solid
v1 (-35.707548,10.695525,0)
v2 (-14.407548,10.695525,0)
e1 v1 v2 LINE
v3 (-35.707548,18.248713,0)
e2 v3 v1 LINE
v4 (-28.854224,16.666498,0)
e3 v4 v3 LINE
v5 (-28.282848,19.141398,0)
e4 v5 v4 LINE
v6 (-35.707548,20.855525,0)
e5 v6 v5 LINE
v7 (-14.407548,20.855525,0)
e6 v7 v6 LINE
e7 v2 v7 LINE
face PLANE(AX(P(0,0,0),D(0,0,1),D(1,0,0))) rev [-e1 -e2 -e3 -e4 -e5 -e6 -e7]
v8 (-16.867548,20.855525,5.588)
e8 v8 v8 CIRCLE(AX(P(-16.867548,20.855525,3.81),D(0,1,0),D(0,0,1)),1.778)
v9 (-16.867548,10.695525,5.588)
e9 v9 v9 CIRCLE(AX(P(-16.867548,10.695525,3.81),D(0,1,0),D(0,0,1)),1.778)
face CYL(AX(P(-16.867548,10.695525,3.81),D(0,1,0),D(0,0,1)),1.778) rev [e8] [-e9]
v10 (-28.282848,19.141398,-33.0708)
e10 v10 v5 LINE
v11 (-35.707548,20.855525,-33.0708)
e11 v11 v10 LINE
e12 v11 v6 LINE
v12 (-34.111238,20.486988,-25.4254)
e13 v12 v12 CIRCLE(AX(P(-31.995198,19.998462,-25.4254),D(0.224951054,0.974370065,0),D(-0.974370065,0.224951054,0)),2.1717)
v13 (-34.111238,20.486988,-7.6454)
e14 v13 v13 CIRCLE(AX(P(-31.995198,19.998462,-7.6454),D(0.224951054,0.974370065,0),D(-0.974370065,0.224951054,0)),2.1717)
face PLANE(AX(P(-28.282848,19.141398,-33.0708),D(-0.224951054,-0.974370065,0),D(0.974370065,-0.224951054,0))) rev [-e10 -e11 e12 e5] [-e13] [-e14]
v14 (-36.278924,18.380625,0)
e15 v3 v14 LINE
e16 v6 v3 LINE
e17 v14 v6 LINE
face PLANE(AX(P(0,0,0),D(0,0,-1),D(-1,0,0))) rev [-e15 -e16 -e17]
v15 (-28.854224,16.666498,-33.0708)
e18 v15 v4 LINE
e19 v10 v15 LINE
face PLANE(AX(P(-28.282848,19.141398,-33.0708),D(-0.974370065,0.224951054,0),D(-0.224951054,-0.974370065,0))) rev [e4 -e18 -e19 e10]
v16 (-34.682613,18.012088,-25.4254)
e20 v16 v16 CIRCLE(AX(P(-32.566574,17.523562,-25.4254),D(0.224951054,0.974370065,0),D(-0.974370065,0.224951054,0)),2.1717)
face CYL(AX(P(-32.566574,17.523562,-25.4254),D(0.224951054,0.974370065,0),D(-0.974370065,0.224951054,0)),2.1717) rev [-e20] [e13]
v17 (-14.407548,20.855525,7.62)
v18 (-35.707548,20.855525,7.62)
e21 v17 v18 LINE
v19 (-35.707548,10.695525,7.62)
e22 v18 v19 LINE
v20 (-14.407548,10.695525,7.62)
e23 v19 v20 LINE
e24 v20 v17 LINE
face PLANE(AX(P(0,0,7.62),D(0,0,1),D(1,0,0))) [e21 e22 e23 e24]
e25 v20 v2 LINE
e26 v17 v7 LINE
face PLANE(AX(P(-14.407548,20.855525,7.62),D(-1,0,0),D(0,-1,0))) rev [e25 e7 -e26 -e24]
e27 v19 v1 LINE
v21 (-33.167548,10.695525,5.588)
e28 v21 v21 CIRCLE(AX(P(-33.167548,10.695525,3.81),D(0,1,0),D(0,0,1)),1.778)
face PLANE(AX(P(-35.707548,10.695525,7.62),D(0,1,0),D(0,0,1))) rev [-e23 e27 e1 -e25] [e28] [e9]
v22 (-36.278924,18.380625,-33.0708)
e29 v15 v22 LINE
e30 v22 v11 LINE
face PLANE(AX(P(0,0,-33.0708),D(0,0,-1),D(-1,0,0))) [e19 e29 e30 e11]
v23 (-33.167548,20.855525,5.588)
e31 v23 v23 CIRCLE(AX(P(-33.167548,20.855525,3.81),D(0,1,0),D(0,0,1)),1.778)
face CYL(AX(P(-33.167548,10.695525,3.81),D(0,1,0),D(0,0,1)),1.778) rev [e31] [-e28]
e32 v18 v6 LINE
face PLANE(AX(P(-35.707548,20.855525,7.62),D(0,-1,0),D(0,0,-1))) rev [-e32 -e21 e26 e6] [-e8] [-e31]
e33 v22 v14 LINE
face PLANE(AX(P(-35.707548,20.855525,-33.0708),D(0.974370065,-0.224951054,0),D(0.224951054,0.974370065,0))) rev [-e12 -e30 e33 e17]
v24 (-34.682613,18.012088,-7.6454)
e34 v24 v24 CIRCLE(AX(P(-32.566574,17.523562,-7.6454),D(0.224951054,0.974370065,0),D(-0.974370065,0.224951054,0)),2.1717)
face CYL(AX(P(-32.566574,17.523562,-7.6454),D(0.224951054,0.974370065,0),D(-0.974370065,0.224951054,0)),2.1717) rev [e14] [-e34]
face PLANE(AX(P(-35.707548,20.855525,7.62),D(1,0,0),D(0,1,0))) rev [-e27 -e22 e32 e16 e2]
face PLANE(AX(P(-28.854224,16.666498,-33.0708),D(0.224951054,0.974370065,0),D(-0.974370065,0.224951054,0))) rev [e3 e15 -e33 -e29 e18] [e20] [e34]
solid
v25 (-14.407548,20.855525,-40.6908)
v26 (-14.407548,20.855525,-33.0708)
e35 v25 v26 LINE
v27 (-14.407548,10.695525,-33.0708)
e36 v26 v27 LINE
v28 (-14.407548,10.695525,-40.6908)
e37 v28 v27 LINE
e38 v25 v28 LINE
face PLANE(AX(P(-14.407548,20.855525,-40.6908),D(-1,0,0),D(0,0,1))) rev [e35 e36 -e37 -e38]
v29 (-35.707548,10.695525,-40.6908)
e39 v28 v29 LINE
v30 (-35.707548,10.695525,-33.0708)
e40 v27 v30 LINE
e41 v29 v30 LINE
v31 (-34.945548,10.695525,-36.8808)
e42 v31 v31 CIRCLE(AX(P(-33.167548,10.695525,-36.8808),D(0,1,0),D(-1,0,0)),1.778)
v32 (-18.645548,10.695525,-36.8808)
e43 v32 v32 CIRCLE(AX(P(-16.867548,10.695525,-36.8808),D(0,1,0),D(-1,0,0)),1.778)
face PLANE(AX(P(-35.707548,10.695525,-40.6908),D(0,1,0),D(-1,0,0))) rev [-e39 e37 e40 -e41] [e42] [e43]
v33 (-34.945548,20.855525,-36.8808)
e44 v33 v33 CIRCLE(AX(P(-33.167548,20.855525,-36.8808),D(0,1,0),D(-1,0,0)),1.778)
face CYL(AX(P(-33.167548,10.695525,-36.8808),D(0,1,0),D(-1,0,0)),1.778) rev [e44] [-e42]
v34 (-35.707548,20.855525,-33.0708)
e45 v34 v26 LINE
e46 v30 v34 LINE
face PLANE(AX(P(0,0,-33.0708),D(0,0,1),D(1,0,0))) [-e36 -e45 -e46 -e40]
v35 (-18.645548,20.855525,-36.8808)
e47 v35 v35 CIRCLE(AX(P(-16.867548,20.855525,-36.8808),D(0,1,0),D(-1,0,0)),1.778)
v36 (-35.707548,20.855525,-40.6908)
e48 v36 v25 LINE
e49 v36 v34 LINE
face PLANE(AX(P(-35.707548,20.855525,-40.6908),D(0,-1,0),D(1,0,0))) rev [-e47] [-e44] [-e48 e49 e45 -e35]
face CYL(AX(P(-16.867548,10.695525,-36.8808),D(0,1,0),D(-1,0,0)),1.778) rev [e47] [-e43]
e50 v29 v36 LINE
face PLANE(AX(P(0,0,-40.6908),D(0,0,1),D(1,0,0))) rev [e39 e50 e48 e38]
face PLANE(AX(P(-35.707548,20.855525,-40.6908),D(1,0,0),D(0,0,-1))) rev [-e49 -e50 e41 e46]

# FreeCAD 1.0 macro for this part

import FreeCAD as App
import Part
import Sketcher
Q = App.Units.Quantity


def add_polygon(sketch, points):
    """Adds a closed chain of lines whose ends are joined by coincident constraints."""
    first, n = sketch.GeometryCount, len(points)
    for a, b in zip(points, points[1:] + points[:1]):
        sketch.addGeometry(Part.LineSegment(App.Vector(*a, 0), App.Vector(*b, 0)), False)
    for i in range(n):
        sketch.addConstraint(Sketcher.Constraint("Coincident", first + i, 2, first + (i + 1) % n, 1))

doc = App.newDocument("Part")
body = doc.addObject("PartDesign::Body", "Body")

sketch1 = body.newObject("Sketcher::SketchObject", "Sketch")
sketch1.AttachmentSupport = (doc.getObject("XY_Plane"), [""])
sketch1.MapMode = "FlatFace"
add_polygon(sketch1, [(-36, 21), (-36, 11), (-14, 11), (-14, 21)])
sketch1.addConstraint(Sketcher.Constraint("Vertical", 0))
sketch1.addConstraint(Sketcher.Constraint("Horizontal", 1))
sketch1.addConstraint(Sketcher.Constraint("Vertical", 2))
sketch1.addConstraint(Sketcher.Constraint("Horizontal", 3))
sketch1.addConstraint(Sketcher.Constraint("DistanceY", 0, 2, 0, 1, Q("0.4 in")))
sketch1.addConstraint(Sketcher.Constraint("DistanceX", 1, 1, 1, 2, Q("21.300001 mm")))
sketch1.addConstraint(Sketcher.Constraint("DistanceX", 0, 2, -1, 1, Q("35.707548 mm")))
sketch1.addConstraint(Sketcher.Constraint("DistanceY", -1, 1, 0, 2, Q("10.695525 mm")))
pad1 = body.newObject("PartDesign::Pad", "Pad")
pad1.Profile = sketch1
pad1.Length = Q("0.3 in")

sketch2 = body.newObject("Sketcher::SketchObject", "Sketch001")
sketch2.AttachmentSupport = (doc.getObject("XY_Plane"), [""])
sketch2.MapMode = "FlatFace"
add_polygon(sketch2, [(-35.7, 20.9), (-28.3, 19.1), (-28.9, 16.7), (-36.3, 18.4)])
sketch2.addConstraint(Sketcher.Constraint("Perpendicular", 0, 1))
sketch2.addConstraint(Sketcher.Constraint("Perpendicular", 1, 2))
sketch2.addConstraint(Sketcher.Constraint("Perpendicular", 2, 3))
sketch2.addConstraint(Sketcher.Constraint("Angle", 0, Q("-13 deg")))
sketch2.addConstraint(Sketcher.Constraint("Distance", 0, Q("0.3 in")))
sketch2.addConstraint(Sketcher.Constraint("Distance", 1, Q("0.1 in")))
sketch2.addConstraint(Sketcher.Constraint("DistanceY", -1, 1, 0, 2, Q("19.141398 mm")))
sketch2.addConstraint(Sketcher.Constraint("DistanceX", 0, 2, -1, 1, Q("28.282848 mm")))
pad2 = body.newObject("PartDesign::Pad", "Pad001")
pad2.Profile = sketch2
pad2.Length = Q("1.302 in")
pad2.Reversed = True

sketch3 = body.newObject("Sketcher::SketchObject", "Sketch002")
sketch3.AttachmentSupport = (doc.getObject("XZ_Plane"), [""])
sketch3.MapMode = "FlatFace"
sketch3.AttachmentOffset = App.Placement(App.Vector(0, 0, -20.855525), App.Rotation())
sketch3.addGeometry(Part.Circle(App.Vector(-33.2, 3.8, 0), App.Vector(0, 0, 1), 1.8), False)
sketch3.addGeometry(Part.Circle(App.Vector(-16.9, 3.8, 0), App.Vector(0, 0, 1), 1.8), False)
sketch3.addConstraint(Sketcher.Constraint("Equal", 0, 1))
sketch3.addConstraint(Sketcher.Constraint("Horizontal", 0, 3, 1, 3))
sketch3.addConstraint(Sketcher.Constraint("Diameter", 0, Q("0.14 in")))
sketch3.addConstraint(Sketcher.Constraint("DistanceY", -1, 1, 0, 3, Q("0.15 in")))
sketch3.addConstraint(Sketcher.Constraint("DistanceX", 0, 3, 1, 3, Q("16.3 mm")))
sketch3.addConstraint(Sketcher.Constraint("DistanceX", 0, 3, -1, 1, Q("33.167548 mm")))
pocket1 = body.newObject("PartDesign::Pocket", "Pocket")
pocket1.Profile = sketch3
pocket1.Length = Q("0.4 in")
pocket1.Reversed = True

sketch4 = body.newObject("Sketcher::SketchObject", "Sketch003")
sketch4.Placement = App.Placement(App.Vector(2.764322, 11.973594, 0), App.Rotation(App.Vector(0.974370065, -0.224951054, 0), App.Vector(0, 0, -1), App.Vector(0.224951054, 0.974370065, 0), "ZXY"))
sketch4.addGeometry(Part.Circle(App.Vector(-35.7, 7.6, 0), App.Vector(0, 0, 1), 2.2), False)
sketch4.addGeometry(Part.Circle(App.Vector(-35.7, 25.4, 0), App.Vector(0, 0, 1), 2.2), False)
sketch4.addConstraint(Sketcher.Constraint("Equal", 0, 1))
sketch4.addConstraint(Sketcher.Constraint("Vertical", 0, 3, 1, 3))
sketch4.addConstraint(Sketcher.Constraint("Diameter", 0, Q("0.171 in")))
sketch4.addConstraint(Sketcher.Constraint("DistanceY", 0, 3, 1, 3, Q("0.7 in")))
sketch4.addConstraint(Sketcher.Constraint("DistanceY", -1, 1, 0, 3, Q("0.301 in")))
sketch4.addConstraint(Sketcher.Constraint("DistanceX", 0, 3, -1, 1, Q("35.673838 mm")))
pocket2 = body.newObject("PartDesign::Pocket", "Pocket001")
pocket2.Profile = sketch4
pocket2.Length = Q("0.1 in")
body2 = doc.addObject("PartDesign::Body", "Body001")

sketch5 = body2.newObject("Sketcher::SketchObject", "Sketch004")
sketch5.AttachmentSupport = (doc.getObject("XY_Plane001"), [""])
sketch5.MapMode = "FlatFace"
sketch5.AttachmentOffset = App.Placement(App.Vector(0, 0, -1.302 * 25.4), App.Rotation())
add_polygon(sketch5, [(-14, 21), (-14, 11), (-36, 11), (-36, 21)])
sketch5.addConstraint(Sketcher.Constraint("Vertical", 0))
sketch5.addConstraint(Sketcher.Constraint("Horizontal", 1))
sketch5.addConstraint(Sketcher.Constraint("Vertical", 2))
sketch5.addConstraint(Sketcher.Constraint("Horizontal", 3))
sketch5.addConstraint(Sketcher.Constraint("DistanceY", 0, 2, 0, 1, Q("0.4 in")))
sketch5.addConstraint(Sketcher.Constraint("DistanceX", 1, 2, 1, 1, Q("21.300001 mm")))
sketch5.addConstraint(Sketcher.Constraint("DistanceX", 1, 2, -1, 1, Q("35.707548 mm")))
sketch5.addConstraint(Sketcher.Constraint("DistanceY", -1, 1, 0, 2, Q("10.695525 mm")))
pad3 = body2.newObject("PartDesign::Pad", "Pad002")
pad3.Profile = sketch5
pad3.Length = Q("0.3 in")
pad3.Reversed = True

sketch6 = body2.newObject("Sketcher::SketchObject", "Sketch005")
sketch6.AttachmentSupport = (doc.getObject("XZ_Plane001"), [""])
sketch6.MapMode = "FlatFace"
sketch6.AttachmentOffset = App.Placement(App.Vector(0, 0, -20.855525), App.Rotation())
sketch6.addGeometry(Part.Circle(App.Vector(-33.2, -36.9, 0), App.Vector(0, 0, 1), 1.8), False)
sketch6.addGeometry(Part.Circle(App.Vector(-16.9, -36.9, 0), App.Vector(0, 0, 1), 1.8), False)
sketch6.addConstraint(Sketcher.Constraint("Equal", 0, 1))
sketch6.addConstraint(Sketcher.Constraint("Horizontal", 0, 3, 1, 3))
sketch6.addConstraint(Sketcher.Constraint("Diameter", 0, Q("0.14 in")))
sketch6.addConstraint(Sketcher.Constraint("DistanceY", 0, 3, -1, 1, Q("1.452 in")))
sketch6.addConstraint(Sketcher.Constraint("DistanceX", 0, 3, 1, 3, Q("16.3 mm")))
sketch6.addConstraint(Sketcher.Constraint("DistanceX", 0, 3, -1, 1, Q("33.167548 mm")))
pocket3 = body2.newObject("PartDesign::Pocket", "Pocket002")
pocket3.Profile = sketch6
pocket3.Length = Q("0.4 in")
pocket3.Reversed = True

doc.recompute()
